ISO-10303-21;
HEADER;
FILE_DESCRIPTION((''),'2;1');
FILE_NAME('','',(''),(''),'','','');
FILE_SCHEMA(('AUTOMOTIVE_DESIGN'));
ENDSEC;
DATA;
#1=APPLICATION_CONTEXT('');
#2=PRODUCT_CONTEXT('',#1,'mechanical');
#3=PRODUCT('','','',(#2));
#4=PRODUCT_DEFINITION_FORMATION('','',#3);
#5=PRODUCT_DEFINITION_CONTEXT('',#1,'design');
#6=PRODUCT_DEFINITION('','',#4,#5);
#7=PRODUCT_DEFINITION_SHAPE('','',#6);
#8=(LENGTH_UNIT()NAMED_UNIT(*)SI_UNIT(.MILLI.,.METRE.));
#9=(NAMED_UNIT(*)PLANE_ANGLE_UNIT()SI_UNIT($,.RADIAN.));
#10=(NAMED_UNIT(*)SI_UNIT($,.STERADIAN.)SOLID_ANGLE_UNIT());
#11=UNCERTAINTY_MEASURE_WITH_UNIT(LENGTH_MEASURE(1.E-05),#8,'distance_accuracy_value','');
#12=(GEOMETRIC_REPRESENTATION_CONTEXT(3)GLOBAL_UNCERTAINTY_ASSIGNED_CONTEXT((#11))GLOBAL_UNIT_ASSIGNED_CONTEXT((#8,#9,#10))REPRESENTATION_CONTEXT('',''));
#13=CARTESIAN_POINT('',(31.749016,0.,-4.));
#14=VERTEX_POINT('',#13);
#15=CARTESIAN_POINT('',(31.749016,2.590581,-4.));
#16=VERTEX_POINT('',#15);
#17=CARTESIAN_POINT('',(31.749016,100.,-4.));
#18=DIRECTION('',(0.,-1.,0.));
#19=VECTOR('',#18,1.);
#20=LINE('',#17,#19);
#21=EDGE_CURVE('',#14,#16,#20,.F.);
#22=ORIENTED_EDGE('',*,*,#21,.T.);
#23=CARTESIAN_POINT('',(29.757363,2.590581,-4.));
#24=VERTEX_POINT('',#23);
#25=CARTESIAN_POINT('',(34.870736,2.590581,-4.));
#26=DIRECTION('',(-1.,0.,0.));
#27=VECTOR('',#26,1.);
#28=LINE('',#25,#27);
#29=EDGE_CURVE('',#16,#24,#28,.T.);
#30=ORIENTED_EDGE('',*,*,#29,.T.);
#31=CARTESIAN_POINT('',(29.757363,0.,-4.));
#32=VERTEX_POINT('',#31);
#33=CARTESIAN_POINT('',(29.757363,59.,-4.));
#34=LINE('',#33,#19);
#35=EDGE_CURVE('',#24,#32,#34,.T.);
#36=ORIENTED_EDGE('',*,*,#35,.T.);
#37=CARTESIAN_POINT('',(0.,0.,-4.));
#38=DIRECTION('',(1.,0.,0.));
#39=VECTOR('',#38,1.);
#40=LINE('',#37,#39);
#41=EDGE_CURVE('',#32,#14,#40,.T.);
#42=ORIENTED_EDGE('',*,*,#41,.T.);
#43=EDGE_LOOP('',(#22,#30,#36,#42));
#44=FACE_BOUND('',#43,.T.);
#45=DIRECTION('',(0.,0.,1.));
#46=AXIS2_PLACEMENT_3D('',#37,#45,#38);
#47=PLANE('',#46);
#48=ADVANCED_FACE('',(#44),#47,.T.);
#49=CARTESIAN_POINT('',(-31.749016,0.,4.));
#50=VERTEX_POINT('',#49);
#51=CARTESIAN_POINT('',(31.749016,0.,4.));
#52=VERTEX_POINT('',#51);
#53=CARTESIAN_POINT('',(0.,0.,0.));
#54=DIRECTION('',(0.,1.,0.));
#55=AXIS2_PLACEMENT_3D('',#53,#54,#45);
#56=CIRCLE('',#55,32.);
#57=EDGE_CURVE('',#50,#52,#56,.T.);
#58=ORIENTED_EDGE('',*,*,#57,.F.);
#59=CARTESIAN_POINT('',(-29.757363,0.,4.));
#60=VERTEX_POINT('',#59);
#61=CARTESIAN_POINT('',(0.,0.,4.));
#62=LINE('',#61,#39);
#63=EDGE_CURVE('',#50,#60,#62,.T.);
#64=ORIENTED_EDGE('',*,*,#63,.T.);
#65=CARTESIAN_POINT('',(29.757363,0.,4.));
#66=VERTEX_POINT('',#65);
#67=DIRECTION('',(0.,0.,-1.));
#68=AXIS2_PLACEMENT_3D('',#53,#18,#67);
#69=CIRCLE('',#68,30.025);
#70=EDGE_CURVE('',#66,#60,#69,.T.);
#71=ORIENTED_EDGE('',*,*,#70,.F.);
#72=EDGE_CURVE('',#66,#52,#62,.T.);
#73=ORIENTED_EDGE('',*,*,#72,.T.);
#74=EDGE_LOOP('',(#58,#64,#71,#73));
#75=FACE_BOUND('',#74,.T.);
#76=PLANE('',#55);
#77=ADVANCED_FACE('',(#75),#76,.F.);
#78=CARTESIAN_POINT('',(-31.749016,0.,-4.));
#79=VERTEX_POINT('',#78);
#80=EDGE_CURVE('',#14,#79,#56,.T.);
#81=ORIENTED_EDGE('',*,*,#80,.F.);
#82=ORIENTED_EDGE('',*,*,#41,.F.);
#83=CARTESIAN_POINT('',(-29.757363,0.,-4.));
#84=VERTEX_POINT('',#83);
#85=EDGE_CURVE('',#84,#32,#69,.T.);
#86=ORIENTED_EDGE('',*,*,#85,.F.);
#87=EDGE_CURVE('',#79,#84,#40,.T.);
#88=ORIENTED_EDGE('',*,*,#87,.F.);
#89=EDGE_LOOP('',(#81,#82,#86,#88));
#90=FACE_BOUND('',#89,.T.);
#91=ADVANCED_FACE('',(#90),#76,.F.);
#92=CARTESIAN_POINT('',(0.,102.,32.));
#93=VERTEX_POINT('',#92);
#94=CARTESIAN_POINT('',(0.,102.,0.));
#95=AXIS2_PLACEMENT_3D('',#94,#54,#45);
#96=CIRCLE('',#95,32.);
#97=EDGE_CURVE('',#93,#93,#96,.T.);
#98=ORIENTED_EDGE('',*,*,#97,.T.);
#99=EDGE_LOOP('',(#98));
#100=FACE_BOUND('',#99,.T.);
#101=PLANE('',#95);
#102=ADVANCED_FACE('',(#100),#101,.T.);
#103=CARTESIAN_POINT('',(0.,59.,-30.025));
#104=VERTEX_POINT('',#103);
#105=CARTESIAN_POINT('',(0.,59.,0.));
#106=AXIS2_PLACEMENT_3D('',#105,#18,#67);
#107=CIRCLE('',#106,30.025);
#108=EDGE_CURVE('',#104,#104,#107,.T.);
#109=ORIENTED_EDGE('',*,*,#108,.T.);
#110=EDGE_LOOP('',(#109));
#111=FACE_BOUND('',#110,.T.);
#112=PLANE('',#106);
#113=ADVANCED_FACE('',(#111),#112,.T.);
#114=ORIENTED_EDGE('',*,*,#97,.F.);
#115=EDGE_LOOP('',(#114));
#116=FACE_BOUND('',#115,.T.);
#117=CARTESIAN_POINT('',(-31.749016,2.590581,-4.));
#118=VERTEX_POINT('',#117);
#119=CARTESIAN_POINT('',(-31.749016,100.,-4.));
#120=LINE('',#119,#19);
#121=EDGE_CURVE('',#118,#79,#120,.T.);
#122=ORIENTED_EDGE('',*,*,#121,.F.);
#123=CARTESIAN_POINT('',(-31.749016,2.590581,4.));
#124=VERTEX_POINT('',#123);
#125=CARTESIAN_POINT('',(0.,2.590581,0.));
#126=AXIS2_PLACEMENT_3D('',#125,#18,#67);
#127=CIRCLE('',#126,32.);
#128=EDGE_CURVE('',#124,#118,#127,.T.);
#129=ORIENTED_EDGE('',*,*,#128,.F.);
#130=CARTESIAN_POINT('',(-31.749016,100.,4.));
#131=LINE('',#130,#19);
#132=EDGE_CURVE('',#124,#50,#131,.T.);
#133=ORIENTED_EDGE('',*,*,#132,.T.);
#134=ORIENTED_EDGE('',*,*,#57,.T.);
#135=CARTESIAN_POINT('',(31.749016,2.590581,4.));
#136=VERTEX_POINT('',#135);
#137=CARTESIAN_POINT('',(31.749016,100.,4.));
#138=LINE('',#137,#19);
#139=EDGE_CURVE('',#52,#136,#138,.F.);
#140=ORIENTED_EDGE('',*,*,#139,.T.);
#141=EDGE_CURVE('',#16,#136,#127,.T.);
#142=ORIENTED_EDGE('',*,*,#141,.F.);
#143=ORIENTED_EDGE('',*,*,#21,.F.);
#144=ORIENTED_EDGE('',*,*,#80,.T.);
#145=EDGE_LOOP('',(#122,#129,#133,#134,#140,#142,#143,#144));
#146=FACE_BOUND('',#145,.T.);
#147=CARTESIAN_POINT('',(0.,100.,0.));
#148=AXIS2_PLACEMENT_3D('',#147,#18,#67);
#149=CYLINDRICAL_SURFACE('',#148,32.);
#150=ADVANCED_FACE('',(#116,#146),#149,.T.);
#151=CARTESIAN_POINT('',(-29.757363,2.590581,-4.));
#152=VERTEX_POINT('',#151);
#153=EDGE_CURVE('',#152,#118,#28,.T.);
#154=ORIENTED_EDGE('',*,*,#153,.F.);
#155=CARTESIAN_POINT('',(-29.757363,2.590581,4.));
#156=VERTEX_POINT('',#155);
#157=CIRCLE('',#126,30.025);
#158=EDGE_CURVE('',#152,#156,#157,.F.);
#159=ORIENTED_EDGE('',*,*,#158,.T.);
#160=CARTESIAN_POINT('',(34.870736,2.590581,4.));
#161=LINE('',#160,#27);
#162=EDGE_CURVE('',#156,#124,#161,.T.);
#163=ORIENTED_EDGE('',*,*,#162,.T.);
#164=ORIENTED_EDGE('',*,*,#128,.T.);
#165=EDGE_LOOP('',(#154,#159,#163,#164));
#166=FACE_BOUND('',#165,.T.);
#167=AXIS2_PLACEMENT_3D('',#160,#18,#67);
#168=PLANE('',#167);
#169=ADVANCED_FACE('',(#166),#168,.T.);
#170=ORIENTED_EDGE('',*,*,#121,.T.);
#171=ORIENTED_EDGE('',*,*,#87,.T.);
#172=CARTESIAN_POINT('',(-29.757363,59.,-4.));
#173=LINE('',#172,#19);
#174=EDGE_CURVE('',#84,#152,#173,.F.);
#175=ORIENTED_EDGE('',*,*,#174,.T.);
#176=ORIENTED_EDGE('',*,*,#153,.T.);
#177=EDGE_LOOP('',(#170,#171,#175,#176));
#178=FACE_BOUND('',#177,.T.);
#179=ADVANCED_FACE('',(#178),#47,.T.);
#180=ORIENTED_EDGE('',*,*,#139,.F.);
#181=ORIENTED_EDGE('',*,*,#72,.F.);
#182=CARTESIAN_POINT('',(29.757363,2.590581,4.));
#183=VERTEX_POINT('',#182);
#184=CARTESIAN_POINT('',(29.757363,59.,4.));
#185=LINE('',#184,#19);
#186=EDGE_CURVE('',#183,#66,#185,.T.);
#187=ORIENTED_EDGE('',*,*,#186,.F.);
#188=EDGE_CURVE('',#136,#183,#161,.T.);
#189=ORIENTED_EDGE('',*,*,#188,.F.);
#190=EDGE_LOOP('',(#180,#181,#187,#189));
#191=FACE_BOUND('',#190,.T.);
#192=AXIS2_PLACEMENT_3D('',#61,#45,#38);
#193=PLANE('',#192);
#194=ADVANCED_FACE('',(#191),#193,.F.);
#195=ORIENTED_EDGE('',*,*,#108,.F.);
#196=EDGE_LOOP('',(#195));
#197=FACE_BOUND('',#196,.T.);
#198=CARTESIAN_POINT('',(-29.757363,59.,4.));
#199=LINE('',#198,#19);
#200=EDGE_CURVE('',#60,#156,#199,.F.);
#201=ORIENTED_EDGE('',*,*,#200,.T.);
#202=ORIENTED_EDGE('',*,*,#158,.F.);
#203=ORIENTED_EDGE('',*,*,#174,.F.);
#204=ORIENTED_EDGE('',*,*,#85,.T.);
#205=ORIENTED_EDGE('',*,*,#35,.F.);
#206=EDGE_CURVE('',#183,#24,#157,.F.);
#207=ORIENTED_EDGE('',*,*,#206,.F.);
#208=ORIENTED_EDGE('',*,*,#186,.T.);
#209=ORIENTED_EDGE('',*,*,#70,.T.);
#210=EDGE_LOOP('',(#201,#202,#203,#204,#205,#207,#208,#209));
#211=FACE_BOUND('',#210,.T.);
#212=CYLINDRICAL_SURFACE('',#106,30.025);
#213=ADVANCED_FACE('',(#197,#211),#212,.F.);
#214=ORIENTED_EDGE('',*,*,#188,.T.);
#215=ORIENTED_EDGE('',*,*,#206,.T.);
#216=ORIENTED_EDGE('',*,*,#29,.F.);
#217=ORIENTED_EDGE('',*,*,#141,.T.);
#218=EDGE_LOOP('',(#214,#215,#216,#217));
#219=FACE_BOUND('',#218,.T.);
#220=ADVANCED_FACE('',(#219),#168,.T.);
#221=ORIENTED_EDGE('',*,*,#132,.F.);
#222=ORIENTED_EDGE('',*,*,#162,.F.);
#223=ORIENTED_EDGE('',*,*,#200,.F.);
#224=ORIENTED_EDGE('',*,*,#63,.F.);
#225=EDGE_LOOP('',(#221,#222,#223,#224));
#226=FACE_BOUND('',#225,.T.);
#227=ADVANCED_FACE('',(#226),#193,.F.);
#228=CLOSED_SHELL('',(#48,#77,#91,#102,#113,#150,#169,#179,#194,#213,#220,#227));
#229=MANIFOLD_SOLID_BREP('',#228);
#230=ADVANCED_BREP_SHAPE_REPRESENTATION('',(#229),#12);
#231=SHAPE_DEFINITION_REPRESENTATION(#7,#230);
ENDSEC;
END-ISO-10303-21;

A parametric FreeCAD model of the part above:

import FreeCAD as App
import Part
import Sketcher
from FreeCAD import Vector
Q = App.Units.Quantity

doc = App.newDocument("Part")
body = doc.addObject("PartDesign::Body", "Body")

# Sketch on XZ plane
sketch1 = body.newObject("Sketcher::SketchObject", "Sketch")
sketch1.AttachmentSupport = (doc.getObject("XZ_Plane"), [""])
sketch1.MapMode = "FlatFace"
sketch1.addGeometry(Part.Circle(Vector(0, 0, 0), Vector(0, 0, 1), 32), False)
sketch1.addConstraint([
    Sketcher.Constraint("Coincident", 0, 3, -1, 1),
    Sketcher.Constraint("Diameter", 0, Q("64 mm")),
])
pad1 = body.newObject("PartDesign::Pad", "Pad")
pad1.Profile = sketch1
pad1.Length = 100
pad1.Reversed = True

# Sketch on XZ plane
sketch2 = body.newObject("Sketcher::SketchObject", "Sketch001")
sketch2.AttachmentSupport = (doc.getObject("XZ_Plane"), [""])
sketch2.MapMode = "FlatFace"
sketch2.addGeometry(Part.Circle(Vector(0, 0, 0), Vector(0, 0, 1), 30.025), False)
sketch2.addConstraint([
    Sketcher.Constraint("Coincident", 0, 3, -1, 1),
    Sketcher.Constraint("Diameter", 0, Q("60.05 mm")),
])
pocket1 = body.newObject("PartDesign::Pocket", "Pocket")
pocket1.Profile = sketch2
pocket1.Length = 59

# Sketch on XZ plane
sketch3 = body.newObject("Sketcher::SketchObject", "Sketch002")
sketch3.AttachmentSupport = (doc.getObject("XZ_Plane"), [""])
sketch3.MapMode = "FlatFace"
sketch3.AttachmentOffset = App.Placement(Vector(0, 0, -100), App.Rotation())
sketch3.addGeometry(Part.Circle(Vector(0, 0, 0), Vector(0, 0, 1), 32), False)
sketch3.addConstraint([
    Sketcher.Constraint("Coincident", 0, 3, -1, 1),
    Sketcher.Constraint("Diameter", 0, Q("64 mm")),
])
pad2 = body.newObject("PartDesign::Pad", "Pad001")
pad2.Profile = sketch3
pad2.Length = 2
pad2.Reversed = True

# Sketch on XY plane
sketch4 = body.newObject("Sketcher::SketchObject", "Sketch003")
sketch4.AttachmentSupport = (doc.getObject("XY_Plane"), [""])
sketch4.MapMode = "FlatFace"
sketch4.addGeometry([
    Part.LineSegment(Vector(-35.264801, 2.590581, 0), Vector(-35.264801, -3.25334, 0)),
    Part.LineSegment(Vector(-35.264801, -3.25334, 0), Vector(34.870736, -3.25334, 0)),
    Part.LineSegment(Vector(34.870736, -3.25334, 0), Vector(34.870736, 2.590581, 0)),
    Part.LineSegment(Vector(34.870736, 2.590581, 0), Vector(-35.264801, 2.590581, 0)),
], False)
sketch4.addConstraint([
    Sketcher.Constraint("Coincident", 0, 2, 1, 1),
    Sketcher.Constraint("Coincident", 1, 2, 2, 1),
    Sketcher.Constraint("Coincident", 2, 2, 3, 1),
    Sketcher.Constraint("Coincident", 3, 2, 0, 1),
    Sketcher.Constraint("Vertical", 0),
    Sketcher.Constraint("Horizontal", 1),
    Sketcher.Constraint("Vertical", 2),
    Sketcher.Constraint("Horizontal", 3),
    Sketcher.Constraint("DistanceY", 0, 2, 0, 1, Q("5.843921 mm")),
    Sketcher.Constraint("DistanceX", 0, 2, -1, 1, Q("35.264801 mm")),
    Sketcher.Constraint("DistanceX", 1, 1, 1, 2, Q("70.135537 mm")),
    Sketcher.Constraint("DistanceY", 0, 2, -1, 1, Q("3.25334 mm")),
])
pocket2 = body.newObject("PartDesign::Pocket", "Pocket001")
pocket2.Profile = sketch4
pocket2.Type = "TwoLengths"
pocket2.Length = 4
pocket2.Length2 = 4
pocket2.Reversed = True

doc.recompute()
